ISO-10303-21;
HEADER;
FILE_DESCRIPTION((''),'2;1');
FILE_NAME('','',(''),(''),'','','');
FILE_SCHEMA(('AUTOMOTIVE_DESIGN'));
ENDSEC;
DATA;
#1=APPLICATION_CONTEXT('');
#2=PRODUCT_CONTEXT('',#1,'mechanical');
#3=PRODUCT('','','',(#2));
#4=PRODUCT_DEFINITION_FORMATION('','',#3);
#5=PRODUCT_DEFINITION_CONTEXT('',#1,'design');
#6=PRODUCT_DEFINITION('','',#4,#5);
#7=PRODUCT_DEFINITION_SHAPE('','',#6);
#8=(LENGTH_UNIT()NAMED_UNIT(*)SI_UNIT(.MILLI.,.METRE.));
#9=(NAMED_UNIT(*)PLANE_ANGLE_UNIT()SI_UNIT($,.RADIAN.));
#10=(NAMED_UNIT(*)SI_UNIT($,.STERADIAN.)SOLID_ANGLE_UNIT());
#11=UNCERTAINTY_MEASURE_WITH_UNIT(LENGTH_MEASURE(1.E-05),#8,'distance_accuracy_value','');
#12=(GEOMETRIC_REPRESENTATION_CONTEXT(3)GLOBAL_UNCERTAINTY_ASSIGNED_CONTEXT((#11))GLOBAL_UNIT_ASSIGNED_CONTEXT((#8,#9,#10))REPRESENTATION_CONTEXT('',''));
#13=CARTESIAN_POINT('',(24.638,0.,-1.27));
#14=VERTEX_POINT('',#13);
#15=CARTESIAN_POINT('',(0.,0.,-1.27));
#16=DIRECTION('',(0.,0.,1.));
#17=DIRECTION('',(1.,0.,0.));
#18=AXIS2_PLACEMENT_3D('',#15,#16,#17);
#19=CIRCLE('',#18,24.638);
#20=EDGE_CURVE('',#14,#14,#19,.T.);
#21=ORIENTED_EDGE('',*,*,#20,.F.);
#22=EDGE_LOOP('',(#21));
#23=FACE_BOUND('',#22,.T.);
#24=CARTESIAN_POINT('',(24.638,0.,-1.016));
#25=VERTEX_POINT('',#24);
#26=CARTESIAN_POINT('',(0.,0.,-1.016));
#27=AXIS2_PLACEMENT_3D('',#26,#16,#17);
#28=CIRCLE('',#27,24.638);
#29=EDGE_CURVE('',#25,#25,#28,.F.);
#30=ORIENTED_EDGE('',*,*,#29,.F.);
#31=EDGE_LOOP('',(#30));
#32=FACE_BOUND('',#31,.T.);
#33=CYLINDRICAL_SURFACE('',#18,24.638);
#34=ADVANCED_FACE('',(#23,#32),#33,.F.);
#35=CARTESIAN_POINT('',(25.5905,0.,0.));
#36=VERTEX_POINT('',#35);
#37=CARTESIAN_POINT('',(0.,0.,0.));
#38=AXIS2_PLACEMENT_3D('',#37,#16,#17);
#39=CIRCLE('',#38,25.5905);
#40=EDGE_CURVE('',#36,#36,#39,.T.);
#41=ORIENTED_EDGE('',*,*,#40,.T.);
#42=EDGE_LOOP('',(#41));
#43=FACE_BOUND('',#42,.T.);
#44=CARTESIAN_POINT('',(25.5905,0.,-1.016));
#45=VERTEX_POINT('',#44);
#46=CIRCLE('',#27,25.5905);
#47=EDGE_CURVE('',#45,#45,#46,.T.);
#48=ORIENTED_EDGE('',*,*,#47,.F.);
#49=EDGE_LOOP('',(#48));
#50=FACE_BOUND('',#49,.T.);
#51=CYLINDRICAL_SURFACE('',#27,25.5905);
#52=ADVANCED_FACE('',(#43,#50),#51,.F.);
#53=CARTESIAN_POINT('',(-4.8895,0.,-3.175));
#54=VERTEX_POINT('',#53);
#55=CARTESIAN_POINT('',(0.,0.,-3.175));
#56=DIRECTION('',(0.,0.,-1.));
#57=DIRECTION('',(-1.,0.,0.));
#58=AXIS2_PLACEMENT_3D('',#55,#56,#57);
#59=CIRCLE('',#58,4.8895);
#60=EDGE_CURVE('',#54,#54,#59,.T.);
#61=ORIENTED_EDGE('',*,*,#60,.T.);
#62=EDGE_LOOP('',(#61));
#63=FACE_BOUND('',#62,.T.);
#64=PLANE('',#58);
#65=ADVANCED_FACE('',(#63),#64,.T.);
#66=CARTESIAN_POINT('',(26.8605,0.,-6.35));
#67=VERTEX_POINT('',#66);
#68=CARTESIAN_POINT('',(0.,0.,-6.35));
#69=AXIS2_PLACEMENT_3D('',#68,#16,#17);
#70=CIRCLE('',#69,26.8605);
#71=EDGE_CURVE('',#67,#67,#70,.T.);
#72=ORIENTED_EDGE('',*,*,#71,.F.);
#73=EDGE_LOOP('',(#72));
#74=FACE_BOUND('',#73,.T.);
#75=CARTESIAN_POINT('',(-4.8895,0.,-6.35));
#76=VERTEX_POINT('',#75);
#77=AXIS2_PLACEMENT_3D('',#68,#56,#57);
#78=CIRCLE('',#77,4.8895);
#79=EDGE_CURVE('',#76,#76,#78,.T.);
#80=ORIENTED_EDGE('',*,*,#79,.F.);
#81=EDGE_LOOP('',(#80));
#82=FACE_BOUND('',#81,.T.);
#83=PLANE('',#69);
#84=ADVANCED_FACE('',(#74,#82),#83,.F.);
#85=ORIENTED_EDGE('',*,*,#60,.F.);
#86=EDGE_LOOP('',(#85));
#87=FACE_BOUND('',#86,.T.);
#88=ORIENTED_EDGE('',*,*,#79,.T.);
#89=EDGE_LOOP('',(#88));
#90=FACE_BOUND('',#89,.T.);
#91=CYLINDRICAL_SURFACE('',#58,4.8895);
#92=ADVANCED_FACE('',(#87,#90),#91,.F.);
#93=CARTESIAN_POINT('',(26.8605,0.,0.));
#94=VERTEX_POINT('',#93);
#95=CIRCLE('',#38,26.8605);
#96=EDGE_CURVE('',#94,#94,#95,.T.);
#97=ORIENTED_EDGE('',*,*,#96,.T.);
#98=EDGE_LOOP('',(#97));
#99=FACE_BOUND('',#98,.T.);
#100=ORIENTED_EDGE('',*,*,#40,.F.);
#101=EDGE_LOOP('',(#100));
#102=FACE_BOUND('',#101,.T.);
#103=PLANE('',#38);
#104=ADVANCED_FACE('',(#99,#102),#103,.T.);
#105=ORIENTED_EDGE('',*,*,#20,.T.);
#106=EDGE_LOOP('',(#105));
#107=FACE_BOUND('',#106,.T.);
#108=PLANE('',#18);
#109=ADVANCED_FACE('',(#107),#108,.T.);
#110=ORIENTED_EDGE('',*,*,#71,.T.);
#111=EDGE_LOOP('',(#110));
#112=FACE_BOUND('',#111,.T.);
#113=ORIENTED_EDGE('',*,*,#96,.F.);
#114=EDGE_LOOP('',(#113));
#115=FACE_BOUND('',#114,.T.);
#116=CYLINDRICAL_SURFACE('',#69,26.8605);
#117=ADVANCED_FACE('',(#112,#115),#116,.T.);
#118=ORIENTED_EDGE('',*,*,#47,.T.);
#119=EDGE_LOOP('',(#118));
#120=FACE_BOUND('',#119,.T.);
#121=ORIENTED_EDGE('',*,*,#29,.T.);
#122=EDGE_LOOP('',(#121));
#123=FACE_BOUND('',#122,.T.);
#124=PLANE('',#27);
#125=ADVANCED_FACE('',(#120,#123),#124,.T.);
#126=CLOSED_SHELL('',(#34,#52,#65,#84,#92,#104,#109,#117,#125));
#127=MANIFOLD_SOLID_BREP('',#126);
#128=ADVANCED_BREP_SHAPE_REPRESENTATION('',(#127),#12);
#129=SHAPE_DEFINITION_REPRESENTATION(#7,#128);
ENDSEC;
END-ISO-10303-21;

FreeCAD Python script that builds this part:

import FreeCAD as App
import Part
import Sketcher
Q = App.Units.Quantity

doc = App.newDocument("Part")
params = doc.addObject("Spreadsheet::Sheet", "Params")
for row, (alias, value) in enumerate([
    ("sketch1_diameter", "2.115 in"),
    ("pad1_length", "0.25 in"),
    ("sketch2_diameter", "1.94 in"),
    ("pocket1_length", "0.05 in"),
    ("sketch3_diameter", "2.015 in"),
    ("pocket2_length", "0.04 in"),
    ("sketch4_diameter", "0.385 in"),
    ("pocket3_length", "0.125 in"),
], start=1):
    params.set(f"A{row}", alias)
    params.set(f"B{row}", "=" + value)
    params.setAlias(f"B{row}", alias)

body = doc.addObject("PartDesign::Body", "Body")

sketch1 = body.newObject("Sketcher::SketchObject", "Sketch")
sketch1.AttachmentSupport = (doc.getObject("XY_Plane"), [""])
sketch1.MapMode = "FlatFace"
sketch1.addGeometry(Part.Circle(App.Vector(0, 0, 0), App.Vector(0, 0, 1), 27), False)
sketch1.addConstraint([
    Sketcher.Constraint("Coincident", 0, 3, -1, 1),
    Sketcher.Constraint("Diameter", 0, Q("2.115 in")),
])
sketch1.setExpression("Constraints[1]", "Params.sketch1_diameter")
pad1 = body.newObject("PartDesign::Pad", "Pad")
pad1.Profile = sketch1
pad1.setExpression("Length", "Params.pad1_length")
pad1.Reversed = True

sketch2 = body.newObject("Sketcher::SketchObject", "Sketch001")
sketch2.AttachmentSupport = (doc.getObject("XY_Plane"), [""])
sketch2.MapMode = "FlatFace"
sketch2.addGeometry(Part.Circle(App.Vector(0, 0, 0), App.Vector(0, 0, 1), 25), False)
sketch2.addConstraint([
    Sketcher.Constraint("Coincident", 0, 3, -1, 1),
    Sketcher.Constraint("Diameter", 0, Q("1.94 in")),
])
sketch2.setExpression("Constraints[1]", "Params.sketch2_diameter")
pocket1 = body.newObject("PartDesign::Pocket", "Pocket")
pocket1.Profile = sketch2
pocket1.setExpression("Length", "Params.pocket1_length")

sketch3 = body.newObject("Sketcher::SketchObject", "Sketch002")
sketch3.AttachmentSupport = (doc.getObject("XY_Plane"), [""])
sketch3.MapMode = "FlatFace"
sketch3.addGeometry(Part.Circle(App.Vector(0, 0, 0), App.Vector(0, 0, 1), 26), False)
sketch3.addConstraint([
    Sketcher.Constraint("Coincident", 0, 3, -1, 1),
    Sketcher.Constraint("Diameter", 0, Q("2.015 in")),
])
sketch3.setExpression("Constraints[1]", "Params.sketch3_diameter")
pocket2 = body.newObject("PartDesign::Pocket", "Pocket001")
pocket2.Profile = sketch3
pocket2.setExpression("Length", "Params.pocket2_length")

sketch4 = body.newObject("Sketcher::SketchObject", "Sketch003")
sketch4.AttachmentSupport = (doc.getObject("XY_Plane"), [""])
sketch4.MapMode = "FlatFace"
sketch4.AttachmentOffset = App.Placement(App.Vector(0, 0, -0.25 * 25.4), App.Rotation())
sketch4.addGeometry(Part.Circle(App.Vector(0, 0, 0), App.Vector(0, 0, 1), 4.9), False)
sketch4.addConstraint([
    Sketcher.Constraint("Coincident", 0, 3, -1, 1),
    Sketcher.Constraint("Diameter", 0, Q("0.385 in")),
])
sketch4.setExpression("Constraints[1]", "Params.sketch4_diameter")
pocket3 = body.newObject("PartDesign::Pocket", "Pocket002")
pocket3.Profile = sketch4
pocket3.setExpression("Length", "Params.pocket3_length")
pocket3.Reversed = True

doc.recompute()
